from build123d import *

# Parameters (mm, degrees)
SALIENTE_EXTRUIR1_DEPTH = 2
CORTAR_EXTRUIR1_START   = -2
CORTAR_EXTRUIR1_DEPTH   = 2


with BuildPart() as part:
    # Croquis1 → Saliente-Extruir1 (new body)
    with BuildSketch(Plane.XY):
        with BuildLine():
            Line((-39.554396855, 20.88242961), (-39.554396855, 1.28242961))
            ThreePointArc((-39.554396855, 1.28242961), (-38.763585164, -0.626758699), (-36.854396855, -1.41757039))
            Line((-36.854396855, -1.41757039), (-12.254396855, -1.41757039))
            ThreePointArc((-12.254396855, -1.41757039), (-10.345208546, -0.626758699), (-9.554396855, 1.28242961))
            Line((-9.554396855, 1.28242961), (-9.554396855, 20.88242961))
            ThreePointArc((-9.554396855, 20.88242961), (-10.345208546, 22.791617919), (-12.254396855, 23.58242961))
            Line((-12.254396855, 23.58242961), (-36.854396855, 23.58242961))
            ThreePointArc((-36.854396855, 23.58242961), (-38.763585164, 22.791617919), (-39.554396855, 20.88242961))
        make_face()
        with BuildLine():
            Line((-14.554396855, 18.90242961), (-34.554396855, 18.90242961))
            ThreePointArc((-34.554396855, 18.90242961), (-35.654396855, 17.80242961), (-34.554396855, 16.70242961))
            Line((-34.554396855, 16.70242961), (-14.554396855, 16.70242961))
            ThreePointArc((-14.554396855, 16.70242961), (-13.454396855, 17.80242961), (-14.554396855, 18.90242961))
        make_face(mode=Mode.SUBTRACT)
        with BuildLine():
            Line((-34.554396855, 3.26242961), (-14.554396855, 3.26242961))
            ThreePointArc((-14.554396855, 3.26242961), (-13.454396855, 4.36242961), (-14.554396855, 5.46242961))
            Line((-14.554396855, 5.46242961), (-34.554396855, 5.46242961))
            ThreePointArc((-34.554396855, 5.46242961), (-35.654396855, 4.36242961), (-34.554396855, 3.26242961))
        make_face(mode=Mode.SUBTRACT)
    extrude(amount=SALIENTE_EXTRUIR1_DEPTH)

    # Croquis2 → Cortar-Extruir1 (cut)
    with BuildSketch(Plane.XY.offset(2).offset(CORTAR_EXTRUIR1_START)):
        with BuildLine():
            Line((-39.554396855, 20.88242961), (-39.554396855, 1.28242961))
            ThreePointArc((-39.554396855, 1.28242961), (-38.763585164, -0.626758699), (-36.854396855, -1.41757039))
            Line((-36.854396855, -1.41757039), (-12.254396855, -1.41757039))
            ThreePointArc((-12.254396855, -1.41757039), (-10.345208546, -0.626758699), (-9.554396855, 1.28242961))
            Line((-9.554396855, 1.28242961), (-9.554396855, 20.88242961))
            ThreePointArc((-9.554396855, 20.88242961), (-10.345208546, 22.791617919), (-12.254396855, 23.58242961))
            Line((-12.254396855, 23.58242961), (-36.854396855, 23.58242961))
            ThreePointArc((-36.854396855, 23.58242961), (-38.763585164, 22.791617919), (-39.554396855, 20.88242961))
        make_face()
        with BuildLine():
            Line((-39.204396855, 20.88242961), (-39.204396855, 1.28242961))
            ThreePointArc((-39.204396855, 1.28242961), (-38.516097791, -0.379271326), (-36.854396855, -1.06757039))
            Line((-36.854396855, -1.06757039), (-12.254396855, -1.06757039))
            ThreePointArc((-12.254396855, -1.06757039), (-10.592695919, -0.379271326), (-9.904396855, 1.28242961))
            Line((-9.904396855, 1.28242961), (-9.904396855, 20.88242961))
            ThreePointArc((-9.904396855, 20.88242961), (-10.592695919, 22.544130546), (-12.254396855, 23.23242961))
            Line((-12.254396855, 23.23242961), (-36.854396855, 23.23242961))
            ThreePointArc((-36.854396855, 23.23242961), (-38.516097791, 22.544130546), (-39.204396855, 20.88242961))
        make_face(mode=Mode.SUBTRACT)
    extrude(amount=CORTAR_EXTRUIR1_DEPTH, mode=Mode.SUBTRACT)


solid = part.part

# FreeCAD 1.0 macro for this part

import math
import FreeCAD as App
import Part
import Sketcher
from FreeCAD import Vector

doc = App.newDocument("Part")
params = doc.addObject("Spreadsheet::Sheet", "Params")
for row, (alias, value) in enumerate([
    ("sketch1_radius", "2.7 mm"),
    ("sketch1_radius2", "1.1 mm"),
    ("sketch1_width", "20 mm"),
    ("sketch1_width2", "24.6 mm"),
    ("sketch1_height", "19.6 mm"),
    ("pad1_length", "2 mm"),
    ("sketch2_radius", "2.7 mm"),
    ("sketch2_radius2", "2.35 mm"),
    ("sketch2_width", "24.6 mm"),
    ("sketch2_height", "19.6 mm"),
    ("pocket1_length", "2 mm"),
], start=1):
    params.set(f"A{row}", alias)
    params.set(f"B{row}", "=" + value)
    params.setAlias(f"B{row}", alias)

body = doc.addObject("PartDesign::Body", "Body")

# Sketch on XY plane
sketch1 = body.newObject("Sketcher::SketchObject", "Sketch")
sketch1.AttachmentSupport = (doc.getObject("XY_Plane"), [""])
sketch1.MapMode = "FlatFace"
sketch1.addGeometry(Part.LineSegment(Vector(-39.554397, 20.88243, 0), Vector(-39.554397, 1.28243, 0)), False)
sketch1.addGeometry(Part.ArcOfCircle(Part.Circle(Vector(-36.854397, 1.28243, 0), Vector(0, 0, 1), 2.7), math.radians(-180), math.radians(-90)), False)
sketch1.addGeometry(Part.LineSegment(Vector(-36.854397, -1.41757, 0), Vector(-12.254397, -1.41757, 0)), False)
sketch1.addGeometry(Part.ArcOfCircle(Part.Circle(Vector(-12.254397, 1.28243, 0), Vector(0, 0, 1), 2.7), math.radians(-90), math.radians(0)), False)
sketch1.addGeometry(Part.LineSegment(Vector(-9.554397, 1.28243, 0), Vector(-9.554397, 20.88243, 0)), False)
sketch1.addGeometry(Part.ArcOfCircle(Part.Circle(Vector(-12.254397, 20.88243, 0), Vector(0, 0, 1), 2.7), math.radians(0), math.radians(90)), False)
sketch1.addGeometry(Part.LineSegment(Vector(-12.254397, 23.58243, 0), Vector(-36.854397, 23.58243, 0)), False)
sketch1.addGeometry(Part.ArcOfCircle(Part.Circle(Vector(-36.854397, 20.88243, 0), Vector(0, 0, 1), 2.7), math.radians(90), math.radians(180)), False)
sketch1.addGeometry(Part.LineSegment(Vector(-14.554397, 3.26243, 0), Vector(-34.554397, 3.26243, 0)), False)
sketch1.addGeometry(Part.ArcOfCircle(Part.Circle(Vector(-34.554397, 4.36243, 0), Vector(0, 0, 1), 1.1), math.radians(90), math.radians(270)), False)
sketch1.addGeometry(Part.LineSegment(Vector(-34.554397, 5.46243, 0), Vector(-14.554397, 5.46243, 0)), False)
sketch1.addGeometry(Part.ArcOfCircle(Part.Circle(Vector(-14.554397, 4.36243, 0), Vector(0, 0, 1), 1.1), math.radians(-90), math.radians(90)), False)
sketch1.addGeometry(Part.LineSegment(Vector(-34.554397, 18.90243, 0), Vector(-14.554397, 18.90243, 0)), False)
sketch1.addGeometry(Part.ArcOfCircle(Part.Circle(Vector(-14.554397, 17.80243, 0), Vector(0, 0, 1), 1.1), math.radians(-90), math.radians(90)), False)
sketch1.addGeometry(Part.LineSegment(Vector(-14.554397, 16.70243, 0), Vector(-34.554397, 16.70243, 0)), False)
sketch1.addGeometry(Part.ArcOfCircle(Part.Circle(Vector(-34.554397, 17.80243, 0), Vector(0, 0, 1), 1.1), math.radians(90), math.radians(270)), False)
sketch1.addConstraint(Sketcher.Constraint("Tangent", 0, 2, 1, 1))
sketch1.addConstraint(Sketcher.Constraint("Tangent", 1, 2, 2, 1))
sketch1.addConstraint(Sketcher.Constraint("Tangent", 2, 2, 3, 1))
sketch1.addConstraint(Sketcher.Constraint("Tangent", 3, 2, 4, 1))
sketch1.addConstraint(Sketcher.Constraint("Tangent", 4, 2, 5, 1))
sketch1.addConstraint(Sketcher.Constraint("Tangent", 5, 2, 6, 1))
sketch1.addConstraint(Sketcher.Constraint("Tangent", 6, 2, 7, 1))
sketch1.addConstraint(Sketcher.Constraint("Tangent", 7, 2, 0, 1))
sketch1.addConstraint(Sketcher.Constraint("Tangent", 8, 2, 9, 2))
sketch1.addConstraint(Sketcher.Constraint("Tangent", 9, 1, 10, 1))
sketch1.addConstraint(Sketcher.Constraint("Tangent", 10, 2, 11, 2))
sketch1.addConstraint(Sketcher.Constraint("Tangent", 11, 1, 8, 1))
sketch1.addConstraint(Sketcher.Constraint("Tangent", 12, 2, 13, 2))
sketch1.addConstraint(Sketcher.Constraint("Tangent", 13, 1, 14, 1))
sketch1.addConstraint(Sketcher.Constraint("Tangent", 14, 2, 15, 2))
sketch1.addConstraint(Sketcher.Constraint("Tangent", 15, 1, 12, 1))
sketch1.addConstraint(Sketcher.Constraint("Vertical", 0))
sketch1.addConstraint(Sketcher.Constraint("Horizontal", 2))
sketch1.addConstraint(Sketcher.Constraint("Vertical", 4))
sketch1.addConstraint(Sketcher.Constraint("Horizontal", 6))
sketch1.addConstraint(Sketcher.Constraint("Horizontal", 8))
sketch1.addConstraint(Sketcher.Constraint("Horizontal", 10))
sketch1.addConstraint(Sketcher.Constraint("Horizontal", 12))
sketch1.addConstraint(Sketcher.Constraint("Horizontal", 14))
sketch1.addConstraint(Sketcher.Constraint("Equal", 1, 3))
sketch1.addConstraint(Sketcher.Constraint("Equal", 3, 5))
sketch1.addConstraint(Sketcher.Constraint("Equal", 5, 7))
sketch1.addConstraint(Sketcher.Constraint("Equal", 11, 13))
sketch1.addConstraint(Sketcher.Constraint("Vertical", 11, 3, 13, 3))
sketch1.addConstraint(Sketcher.Constraint("Vertical", 9, 3, 15, 3))
sketch1.addConstraint(Sketcher.Constraint("Radius", 1, 2.7))
sketch1.addConstraint(Sketcher.Constraint("Radius", 9, 1.1))
sketch1.addConstraint(Sketcher.Constraint("DistanceX", 8, 2, 8, 1, 20.0))
sketch1.addConstraint(Sketcher.Constraint("DistanceX", 2, 1, 2, 2, 24.6))
sketch1.addConstraint(Sketcher.Constraint("DistanceY", 0, 2, 0, 1, 19.6))
sketch1.addConstraint(Sketcher.Constraint("DistanceX", 0, 2, 9, 3, 5.0))
sketch1.addConstraint(Sketcher.Constraint("DistanceY", 1, 3, 9, 3, 3.08))
sketch1.addConstraint(Sketcher.Constraint("DistanceY", 13, 3, 5, 3, 3.08))
sketch1.addConstraint(Sketcher.Constraint("DistanceY", -1, 1, 1, 3, 1.28243))
sketch1.addConstraint(Sketcher.Constraint("DistanceX", 1, 3, -1, 1, 36.854397))
sketch1.setExpression("Constraints[30]", "Params.sketch1_radius")
sketch1.setExpression("Constraints[31]", "Params.sketch1_radius2")
sketch1.setExpression("Constraints[32]", "Params.sketch1_width")
sketch1.setExpression("Constraints[33]", "Params.sketch1_width2")
sketch1.setExpression("Constraints[34]", "Params.sketch1_height")
pad1 = body.newObject("PartDesign::Pad", "Pad")
pad1.Profile = sketch1
pad1.setExpression("Length", "Params.pad1_length")

# Sketch on XY plane
sketch2 = body.newObject("Sketcher::SketchObject", "Sketch001")
sketch2.AttachmentSupport = (doc.getObject("XY_Plane"), [""])
sketch2.MapMode = "FlatFace"
sketch2.addGeometry(Part.LineSegment(Vector(-39.554397, 20.88243, 0), Vector(-39.554397, 1.28243, 0)), False)
sketch2.addGeometry(Part.ArcOfCircle(Part.Circle(Vector(-36.854397, 1.28243, 0), Vector(0, 0, 1), 2.7), math.radians(-180), math.radians(-90)), False)
sketch2.addGeometry(Part.LineSegment(Vector(-36.854397, -1.41757, 0), Vector(-12.254397, -1.41757, 0)), False)
sketch2.addGeometry(Part.ArcOfCircle(Part.Circle(Vector(-12.254397, 1.28243, 0), Vector(0, 0, 1), 2.7), math.radians(-90), math.radians(0)), False)
sketch2.addGeometry(Part.LineSegment(Vector(-9.554397, 1.28243, 0), Vector(-9.554397, 20.88243, 0)), False)
sketch2.addGeometry(Part.ArcOfCircle(Part.Circle(Vector(-12.254397, 20.88243, 0), Vector(0, 0, 1), 2.7), math.radians(0), math.radians(90)), False)
sketch2.addGeometry(Part.LineSegment(Vector(-12.254397, 23.58243, 0), Vector(-36.854397, 23.58243, 0)), False)
sketch2.addGeometry(Part.ArcOfCircle(Part.Circle(Vector(-36.854397, 20.88243, 0), Vector(0, 0, 1), 2.7), math.radians(90), math.radians(180)), False)
sketch2.addGeometry(Part.LineSegment(Vector(-39.204397, 1.28243, 0), Vector(-39.204397, 20.88243, 0)), False)
sketch2.addGeometry(Part.ArcOfCircle(Part.Circle(Vector(-36.854397, 20.88243, 0), Vector(0, 0, 1), 2.35), math.radians(90), math.radians(180)), False)
sketch2.addGeometry(Part.LineSegment(Vector(-36.854397, 23.23243, 0), Vector(-12.254397, 23.23243, 0)), False)
sketch2.addGeometry(Part.ArcOfCircle(Part.Circle(Vector(-12.254397, 20.88243, 0), Vector(0, 0, 1), 2.35), math.radians(0), math.radians(90)), False)
sketch2.addGeometry(Part.LineSegment(Vector(-9.904397, 20.88243, 0), Vector(-9.904397, 1.28243, 0)), False)
sketch2.addGeometry(Part.ArcOfCircle(Part.Circle(Vector(-12.254397, 1.28243, 0), Vector(0, 0, 1), 2.35), math.radians(-90), math.radians(0)), False)
sketch2.addGeometry(Part.LineSegment(Vector(-12.254397, -1.06757, 0), Vector(-36.854397, -1.06757, 0)), False)
sketch2.addGeometry(Part.ArcOfCircle(Part.Circle(Vector(-36.854397, 1.28243, 0), Vector(0, 0, 1), 2.35), math.radians(180), math.radians(270)), False)
sketch2.addConstraint(Sketcher.Constraint("Tangent", 0, 2, 1, 1))
sketch2.addConstraint(Sketcher.Constraint("Tangent", 1, 2, 2, 1))
sketch2.addConstraint(Sketcher.Constraint("Tangent", 2, 2, 3, 1))
sketch2.addConstraint(Sketcher.Constraint("Tangent", 3, 2, 4, 1))
sketch2.addConstraint(Sketcher.Constraint("Tangent", 4, 2, 5, 1))
sketch2.addConstraint(Sketcher.Constraint("Tangent", 5, 2, 6, 1))
sketch2.addConstraint(Sketcher.Constraint("Tangent", 6, 2, 7, 1))
sketch2.addConstraint(Sketcher.Constraint("Tangent", 7, 2, 0, 1))
sketch2.addConstraint(Sketcher.Constraint("Tangent", 8, 2, 9, 2))
sketch2.addConstraint(Sketcher.Constraint("Tangent", 9, 1, 10, 1))
sketch2.addConstraint(Sketcher.Constraint("Tangent", 10, 2, 11, 2))
sketch2.addConstraint(Sketcher.Constraint("Tangent", 11, 1, 12, 1))
sketch2.addConstraint(Sketcher.Constraint("Tangent", 12, 2, 13, 2))
sketch2.addConstraint(Sketcher.Constraint("Tangent", 13, 1, 14, 1))
sketch2.addConstraint(Sketcher.Constraint("Tangent", 14, 2, 15, 2))
sketch2.addConstraint(Sketcher.Constraint("Tangent", 15, 1, 8, 1))
sketch2.addConstraint(Sketcher.Constraint("Vertical", 0))
sketch2.addConstraint(Sketcher.Constraint("Horizontal", 2))
sketch2.addConstraint(Sketcher.Constraint("Vertical", 4))
sketch2.addConstraint(Sketcher.Constraint("Horizontal", 6))
sketch2.addConstraint(Sketcher.Constraint("Vertical", 8))
sketch2.addConstraint(Sketcher.Constraint("Horizontal", 10))
sketch2.addConstraint(Sketcher.Constraint("Vertical", 12))
sketch2.addConstraint(Sketcher.Constraint("Horizontal", 14))
sketch2.addConstraint(Sketcher.Constraint("Coincident", 9, 3, 7, 3))
sketch2.addConstraint(Sketcher.Constraint("Coincident", 11, 3, 5, 3))
sketch2.addConstraint(Sketcher.Constraint("Coincident", 13, 3, 3, 3))
sketch2.addConstraint(Sketcher.Constraint("Equal", 1, 3))
sketch2.addConstraint(Sketcher.Constraint("Equal", 3, 5))
sketch2.addConstraint(Sketcher.Constraint("Equal", 5, 7))
sketch2.addConstraint(Sketcher.Constraint("Equal", 13, 15))
sketch2.addConstraint(Sketcher.Constraint("Radius", 1, 2.7))
sketch2.addConstraint(Sketcher.Constraint("Radius", 9, 2.35))
sketch2.addConstraint(Sketcher.Constraint("DistanceX", 2, 1, 2, 2, 24.6))
sketch2.addConstraint(Sketcher.Constraint("DistanceY", 0, 2, 0, 1, 19.6))
sketch2.addConstraint(Sketcher.Constraint("DistanceY", -1, 1, 1, 3, 1.28243))
sketch2.addConstraint(Sketcher.Constraint("DistanceX", 1, 3, -1, 1, 36.854397))
sketch2.setExpression("Constraints[31]", "Params.sketch2_radius")
sketch2.setExpression("Constraints[32]", "Params.sketch2_radius2")
sketch2.setExpression("Constraints[33]", "Params.sketch2_width")
sketch2.setExpression("Constraints[34]", "Params.sketch2_height")
pocket1 = body.newObject("PartDesign::Pocket", "Pocket")
pocket1.Profile = sketch2
pocket1.setExpression("Length", "Params.pocket1_length")
pocket1.Reversed = True

doc.recompute()
